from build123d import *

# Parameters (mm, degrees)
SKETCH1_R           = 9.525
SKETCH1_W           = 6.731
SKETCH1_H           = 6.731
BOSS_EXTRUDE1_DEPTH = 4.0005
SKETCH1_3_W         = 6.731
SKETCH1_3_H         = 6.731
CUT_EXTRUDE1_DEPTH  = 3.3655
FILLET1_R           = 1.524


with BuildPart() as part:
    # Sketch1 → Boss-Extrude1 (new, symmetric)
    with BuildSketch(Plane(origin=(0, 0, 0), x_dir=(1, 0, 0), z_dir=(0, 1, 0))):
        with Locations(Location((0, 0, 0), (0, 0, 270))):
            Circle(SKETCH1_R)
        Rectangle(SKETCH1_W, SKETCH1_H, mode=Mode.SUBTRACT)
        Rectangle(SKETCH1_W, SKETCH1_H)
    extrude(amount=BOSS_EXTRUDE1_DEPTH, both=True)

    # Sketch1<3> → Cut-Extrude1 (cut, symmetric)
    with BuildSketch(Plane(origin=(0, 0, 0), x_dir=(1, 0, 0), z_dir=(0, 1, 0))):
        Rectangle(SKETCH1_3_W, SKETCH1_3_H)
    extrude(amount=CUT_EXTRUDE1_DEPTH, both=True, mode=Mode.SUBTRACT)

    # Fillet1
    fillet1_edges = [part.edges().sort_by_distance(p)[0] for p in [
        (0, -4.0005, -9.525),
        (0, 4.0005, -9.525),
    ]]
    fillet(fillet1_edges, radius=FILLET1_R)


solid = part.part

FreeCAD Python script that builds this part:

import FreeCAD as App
import Part
import Sketcher
Q = App.Units.Quantity


def edges_at(feature, points):
    """Names of the edges that pass closest to the given points."""
    edges = feature.Shape.Edges
    near = lambda p: min(range(len(edges)), key=lambda i: edges[i].distToShape(Part.Vertex(*p))[0])
    return sorted({f"Edge{near(p) + 1}" for p in points})


def add_polygon(sketch, points):
    """Adds a closed chain of lines whose ends are joined by coincident constraints."""
    first, n = sketch.GeometryCount, len(points)
    for a, b in zip(points, points[1:] + points[:1]):
        sketch.addGeometry(Part.LineSegment(App.Vector(*a, 0), App.Vector(*b, 0)), False)
    for i in range(n):
        sketch.addConstraint(Sketcher.Constraint("Coincident", first + i, 2, first + (i + 1) % n, 1))

doc = App.newDocument("Part")
params = doc.addObject("Spreadsheet::Sheet", "Params")
for row, (alias, value) in enumerate([
    ("sketch1_diameter", "0.75 in"),
    ("pad1_length", "0.315 in"),
    ("sketch2_width", "0.265 in"),
    ("pocket1_length", "0.265 in"),
    ("fillet_radius", "0.06 in"),
], start=1):
    params.set(f"A{row}", alias)
    params.set(f"B{row}", "=" + value)
    params.setAlias(f"B{row}", alias)

body = doc.addObject("PartDesign::Body", "Body")

sketch1 = body.newObject("Sketcher::SketchObject", "Sketch")
sketch1.AttachmentSupport = (doc.getObject("XZ_Plane"), [""])
sketch1.MapMode = "FlatFace"
sketch1.addGeometry(Part.Circle(App.Vector(0, 0, 0), App.Vector(0, 0, 1), 10), False)
sketch1.addConstraint(Sketcher.Constraint("Coincident", 0, 3, -1, 1))
sketch1.addConstraint(Sketcher.Constraint("Diameter", 0, Q("0.75 in")))
sketch1.setExpression("Constraints[1]", "Params.sketch1_diameter")
pad1 = body.newObject("PartDesign::Pad", "Pad")
pad1.Profile = sketch1
pad1.setExpression("Length", "Params.pad1_length")
pad1.Midplane = True

sketch2 = body.newObject("Sketcher::SketchObject", "Sketch001")
sketch2.AttachmentSupport = (doc.getObject("XZ_Plane"), [""])
sketch2.MapMode = "FlatFace"
add_polygon(sketch2, [(-3, -3), (-3, 3), (3, 3), (3, -3)])
sketch2.addConstraint(Sketcher.Constraint("Vertical", 0))
sketch2.addConstraint(Sketcher.Constraint("Horizontal", 1))
sketch2.addConstraint(Sketcher.Constraint("Vertical", 2))
sketch2.addConstraint(Sketcher.Constraint("Horizontal", 3))
sketch2.addConstraint(Sketcher.Constraint("Symmetric", 0, 2, 2, 2, -1, 1))
sketch2.addConstraint(Sketcher.Constraint("Equal", 3, 0))
sketch2.addConstraint(Sketcher.Constraint("DistanceX", 1, 1, 1, 2, Q("0.265 in")))
sketch2.setExpression("Constraints[10]", "Params.sketch2_width")
pocket1 = body.newObject("PartDesign::Pocket", "Pocket")
pocket1.Profile = sketch2
pocket1.setExpression("Length", "Params.pocket1_length")
pocket1.Midplane = True
doc.recompute()

fillet = body.newObject("PartDesign::Fillet", "Fillet")
fillet.Base = (pocket1, edges_at(pocket1, [(0, -4, -9.525), (0, 4, -9.525)]))
fillet.setExpression("Radius", "Params.fillet_radius")

doc.recompute()
